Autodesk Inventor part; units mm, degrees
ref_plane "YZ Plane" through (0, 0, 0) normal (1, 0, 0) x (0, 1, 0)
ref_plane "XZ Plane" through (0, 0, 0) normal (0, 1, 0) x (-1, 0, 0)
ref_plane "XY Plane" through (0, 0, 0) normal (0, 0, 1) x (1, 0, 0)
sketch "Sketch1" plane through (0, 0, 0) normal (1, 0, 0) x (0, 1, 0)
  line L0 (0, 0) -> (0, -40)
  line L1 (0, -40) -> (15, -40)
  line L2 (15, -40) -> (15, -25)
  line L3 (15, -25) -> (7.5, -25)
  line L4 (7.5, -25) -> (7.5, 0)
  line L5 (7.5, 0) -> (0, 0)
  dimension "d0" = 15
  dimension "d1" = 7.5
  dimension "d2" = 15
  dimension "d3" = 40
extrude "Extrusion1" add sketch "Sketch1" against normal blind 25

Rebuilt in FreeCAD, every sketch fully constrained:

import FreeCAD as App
import Part
import Sketcher
from FreeCAD import Vector


def add_polygon(sketch, points):
    """Adds a closed chain of lines whose ends are joined by coincident constraints."""
    first, n = sketch.GeometryCount, len(points)
    for a, b in zip(points, points[1:] + points[:1]):
        sketch.addGeometry(Part.LineSegment(App.Vector(*a, 0), App.Vector(*b, 0)), False)
    for i in range(n):
        sketch.addConstraint(Sketcher.Constraint("Coincident", first + i, 2, first + (i + 1) % n, 1))

doc = App.newDocument("Part")
body = doc.addObject("PartDesign::Body", "Body")

sketch1 = body.newObject("Sketcher::SketchObject", "Sketch")
sketch1.AttachmentSupport = (doc.getObject("YZ_Plane"), [""])
sketch1.MapMode = "FlatFace"
add_polygon(sketch1, [(8, 0), (0, 0), (0, -40), (15, -40), (15, -25), (8, -25)])
sketch1.addConstraint(Sketcher.Constraint("Horizontal", 0))
sketch1.addConstraint(Sketcher.Constraint("Vertical", 1))
sketch1.addConstraint(Sketcher.Constraint("Horizontal", 2))
sketch1.addConstraint(Sketcher.Constraint("Vertical", 3))
sketch1.addConstraint(Sketcher.Constraint("Horizontal", 4))
sketch1.addConstraint(Sketcher.Constraint("Vertical", 5))
sketch1.addConstraint(Sketcher.Constraint("Coincident", 0, 2, -1, 1))
sketch1.addConstraint(Sketcher.Constraint("Equal", 0, 4))
sketch1.addConstraint(Sketcher.Constraint("Equal", 2, 3))
sketch1.addConstraint(Sketcher.Constraint("DistanceX", 2, 1, 2, 2, 15.0))
sketch1.addConstraint(Sketcher.Constraint("DistanceY", 1, 2, 1, 1, 40.0))
pad1 = body.newObject("PartDesign::Pad", "Pad")
pad1.Profile = sketch1
pad1.Length = 25
pad1.Reversed = True

doc.recompute()
